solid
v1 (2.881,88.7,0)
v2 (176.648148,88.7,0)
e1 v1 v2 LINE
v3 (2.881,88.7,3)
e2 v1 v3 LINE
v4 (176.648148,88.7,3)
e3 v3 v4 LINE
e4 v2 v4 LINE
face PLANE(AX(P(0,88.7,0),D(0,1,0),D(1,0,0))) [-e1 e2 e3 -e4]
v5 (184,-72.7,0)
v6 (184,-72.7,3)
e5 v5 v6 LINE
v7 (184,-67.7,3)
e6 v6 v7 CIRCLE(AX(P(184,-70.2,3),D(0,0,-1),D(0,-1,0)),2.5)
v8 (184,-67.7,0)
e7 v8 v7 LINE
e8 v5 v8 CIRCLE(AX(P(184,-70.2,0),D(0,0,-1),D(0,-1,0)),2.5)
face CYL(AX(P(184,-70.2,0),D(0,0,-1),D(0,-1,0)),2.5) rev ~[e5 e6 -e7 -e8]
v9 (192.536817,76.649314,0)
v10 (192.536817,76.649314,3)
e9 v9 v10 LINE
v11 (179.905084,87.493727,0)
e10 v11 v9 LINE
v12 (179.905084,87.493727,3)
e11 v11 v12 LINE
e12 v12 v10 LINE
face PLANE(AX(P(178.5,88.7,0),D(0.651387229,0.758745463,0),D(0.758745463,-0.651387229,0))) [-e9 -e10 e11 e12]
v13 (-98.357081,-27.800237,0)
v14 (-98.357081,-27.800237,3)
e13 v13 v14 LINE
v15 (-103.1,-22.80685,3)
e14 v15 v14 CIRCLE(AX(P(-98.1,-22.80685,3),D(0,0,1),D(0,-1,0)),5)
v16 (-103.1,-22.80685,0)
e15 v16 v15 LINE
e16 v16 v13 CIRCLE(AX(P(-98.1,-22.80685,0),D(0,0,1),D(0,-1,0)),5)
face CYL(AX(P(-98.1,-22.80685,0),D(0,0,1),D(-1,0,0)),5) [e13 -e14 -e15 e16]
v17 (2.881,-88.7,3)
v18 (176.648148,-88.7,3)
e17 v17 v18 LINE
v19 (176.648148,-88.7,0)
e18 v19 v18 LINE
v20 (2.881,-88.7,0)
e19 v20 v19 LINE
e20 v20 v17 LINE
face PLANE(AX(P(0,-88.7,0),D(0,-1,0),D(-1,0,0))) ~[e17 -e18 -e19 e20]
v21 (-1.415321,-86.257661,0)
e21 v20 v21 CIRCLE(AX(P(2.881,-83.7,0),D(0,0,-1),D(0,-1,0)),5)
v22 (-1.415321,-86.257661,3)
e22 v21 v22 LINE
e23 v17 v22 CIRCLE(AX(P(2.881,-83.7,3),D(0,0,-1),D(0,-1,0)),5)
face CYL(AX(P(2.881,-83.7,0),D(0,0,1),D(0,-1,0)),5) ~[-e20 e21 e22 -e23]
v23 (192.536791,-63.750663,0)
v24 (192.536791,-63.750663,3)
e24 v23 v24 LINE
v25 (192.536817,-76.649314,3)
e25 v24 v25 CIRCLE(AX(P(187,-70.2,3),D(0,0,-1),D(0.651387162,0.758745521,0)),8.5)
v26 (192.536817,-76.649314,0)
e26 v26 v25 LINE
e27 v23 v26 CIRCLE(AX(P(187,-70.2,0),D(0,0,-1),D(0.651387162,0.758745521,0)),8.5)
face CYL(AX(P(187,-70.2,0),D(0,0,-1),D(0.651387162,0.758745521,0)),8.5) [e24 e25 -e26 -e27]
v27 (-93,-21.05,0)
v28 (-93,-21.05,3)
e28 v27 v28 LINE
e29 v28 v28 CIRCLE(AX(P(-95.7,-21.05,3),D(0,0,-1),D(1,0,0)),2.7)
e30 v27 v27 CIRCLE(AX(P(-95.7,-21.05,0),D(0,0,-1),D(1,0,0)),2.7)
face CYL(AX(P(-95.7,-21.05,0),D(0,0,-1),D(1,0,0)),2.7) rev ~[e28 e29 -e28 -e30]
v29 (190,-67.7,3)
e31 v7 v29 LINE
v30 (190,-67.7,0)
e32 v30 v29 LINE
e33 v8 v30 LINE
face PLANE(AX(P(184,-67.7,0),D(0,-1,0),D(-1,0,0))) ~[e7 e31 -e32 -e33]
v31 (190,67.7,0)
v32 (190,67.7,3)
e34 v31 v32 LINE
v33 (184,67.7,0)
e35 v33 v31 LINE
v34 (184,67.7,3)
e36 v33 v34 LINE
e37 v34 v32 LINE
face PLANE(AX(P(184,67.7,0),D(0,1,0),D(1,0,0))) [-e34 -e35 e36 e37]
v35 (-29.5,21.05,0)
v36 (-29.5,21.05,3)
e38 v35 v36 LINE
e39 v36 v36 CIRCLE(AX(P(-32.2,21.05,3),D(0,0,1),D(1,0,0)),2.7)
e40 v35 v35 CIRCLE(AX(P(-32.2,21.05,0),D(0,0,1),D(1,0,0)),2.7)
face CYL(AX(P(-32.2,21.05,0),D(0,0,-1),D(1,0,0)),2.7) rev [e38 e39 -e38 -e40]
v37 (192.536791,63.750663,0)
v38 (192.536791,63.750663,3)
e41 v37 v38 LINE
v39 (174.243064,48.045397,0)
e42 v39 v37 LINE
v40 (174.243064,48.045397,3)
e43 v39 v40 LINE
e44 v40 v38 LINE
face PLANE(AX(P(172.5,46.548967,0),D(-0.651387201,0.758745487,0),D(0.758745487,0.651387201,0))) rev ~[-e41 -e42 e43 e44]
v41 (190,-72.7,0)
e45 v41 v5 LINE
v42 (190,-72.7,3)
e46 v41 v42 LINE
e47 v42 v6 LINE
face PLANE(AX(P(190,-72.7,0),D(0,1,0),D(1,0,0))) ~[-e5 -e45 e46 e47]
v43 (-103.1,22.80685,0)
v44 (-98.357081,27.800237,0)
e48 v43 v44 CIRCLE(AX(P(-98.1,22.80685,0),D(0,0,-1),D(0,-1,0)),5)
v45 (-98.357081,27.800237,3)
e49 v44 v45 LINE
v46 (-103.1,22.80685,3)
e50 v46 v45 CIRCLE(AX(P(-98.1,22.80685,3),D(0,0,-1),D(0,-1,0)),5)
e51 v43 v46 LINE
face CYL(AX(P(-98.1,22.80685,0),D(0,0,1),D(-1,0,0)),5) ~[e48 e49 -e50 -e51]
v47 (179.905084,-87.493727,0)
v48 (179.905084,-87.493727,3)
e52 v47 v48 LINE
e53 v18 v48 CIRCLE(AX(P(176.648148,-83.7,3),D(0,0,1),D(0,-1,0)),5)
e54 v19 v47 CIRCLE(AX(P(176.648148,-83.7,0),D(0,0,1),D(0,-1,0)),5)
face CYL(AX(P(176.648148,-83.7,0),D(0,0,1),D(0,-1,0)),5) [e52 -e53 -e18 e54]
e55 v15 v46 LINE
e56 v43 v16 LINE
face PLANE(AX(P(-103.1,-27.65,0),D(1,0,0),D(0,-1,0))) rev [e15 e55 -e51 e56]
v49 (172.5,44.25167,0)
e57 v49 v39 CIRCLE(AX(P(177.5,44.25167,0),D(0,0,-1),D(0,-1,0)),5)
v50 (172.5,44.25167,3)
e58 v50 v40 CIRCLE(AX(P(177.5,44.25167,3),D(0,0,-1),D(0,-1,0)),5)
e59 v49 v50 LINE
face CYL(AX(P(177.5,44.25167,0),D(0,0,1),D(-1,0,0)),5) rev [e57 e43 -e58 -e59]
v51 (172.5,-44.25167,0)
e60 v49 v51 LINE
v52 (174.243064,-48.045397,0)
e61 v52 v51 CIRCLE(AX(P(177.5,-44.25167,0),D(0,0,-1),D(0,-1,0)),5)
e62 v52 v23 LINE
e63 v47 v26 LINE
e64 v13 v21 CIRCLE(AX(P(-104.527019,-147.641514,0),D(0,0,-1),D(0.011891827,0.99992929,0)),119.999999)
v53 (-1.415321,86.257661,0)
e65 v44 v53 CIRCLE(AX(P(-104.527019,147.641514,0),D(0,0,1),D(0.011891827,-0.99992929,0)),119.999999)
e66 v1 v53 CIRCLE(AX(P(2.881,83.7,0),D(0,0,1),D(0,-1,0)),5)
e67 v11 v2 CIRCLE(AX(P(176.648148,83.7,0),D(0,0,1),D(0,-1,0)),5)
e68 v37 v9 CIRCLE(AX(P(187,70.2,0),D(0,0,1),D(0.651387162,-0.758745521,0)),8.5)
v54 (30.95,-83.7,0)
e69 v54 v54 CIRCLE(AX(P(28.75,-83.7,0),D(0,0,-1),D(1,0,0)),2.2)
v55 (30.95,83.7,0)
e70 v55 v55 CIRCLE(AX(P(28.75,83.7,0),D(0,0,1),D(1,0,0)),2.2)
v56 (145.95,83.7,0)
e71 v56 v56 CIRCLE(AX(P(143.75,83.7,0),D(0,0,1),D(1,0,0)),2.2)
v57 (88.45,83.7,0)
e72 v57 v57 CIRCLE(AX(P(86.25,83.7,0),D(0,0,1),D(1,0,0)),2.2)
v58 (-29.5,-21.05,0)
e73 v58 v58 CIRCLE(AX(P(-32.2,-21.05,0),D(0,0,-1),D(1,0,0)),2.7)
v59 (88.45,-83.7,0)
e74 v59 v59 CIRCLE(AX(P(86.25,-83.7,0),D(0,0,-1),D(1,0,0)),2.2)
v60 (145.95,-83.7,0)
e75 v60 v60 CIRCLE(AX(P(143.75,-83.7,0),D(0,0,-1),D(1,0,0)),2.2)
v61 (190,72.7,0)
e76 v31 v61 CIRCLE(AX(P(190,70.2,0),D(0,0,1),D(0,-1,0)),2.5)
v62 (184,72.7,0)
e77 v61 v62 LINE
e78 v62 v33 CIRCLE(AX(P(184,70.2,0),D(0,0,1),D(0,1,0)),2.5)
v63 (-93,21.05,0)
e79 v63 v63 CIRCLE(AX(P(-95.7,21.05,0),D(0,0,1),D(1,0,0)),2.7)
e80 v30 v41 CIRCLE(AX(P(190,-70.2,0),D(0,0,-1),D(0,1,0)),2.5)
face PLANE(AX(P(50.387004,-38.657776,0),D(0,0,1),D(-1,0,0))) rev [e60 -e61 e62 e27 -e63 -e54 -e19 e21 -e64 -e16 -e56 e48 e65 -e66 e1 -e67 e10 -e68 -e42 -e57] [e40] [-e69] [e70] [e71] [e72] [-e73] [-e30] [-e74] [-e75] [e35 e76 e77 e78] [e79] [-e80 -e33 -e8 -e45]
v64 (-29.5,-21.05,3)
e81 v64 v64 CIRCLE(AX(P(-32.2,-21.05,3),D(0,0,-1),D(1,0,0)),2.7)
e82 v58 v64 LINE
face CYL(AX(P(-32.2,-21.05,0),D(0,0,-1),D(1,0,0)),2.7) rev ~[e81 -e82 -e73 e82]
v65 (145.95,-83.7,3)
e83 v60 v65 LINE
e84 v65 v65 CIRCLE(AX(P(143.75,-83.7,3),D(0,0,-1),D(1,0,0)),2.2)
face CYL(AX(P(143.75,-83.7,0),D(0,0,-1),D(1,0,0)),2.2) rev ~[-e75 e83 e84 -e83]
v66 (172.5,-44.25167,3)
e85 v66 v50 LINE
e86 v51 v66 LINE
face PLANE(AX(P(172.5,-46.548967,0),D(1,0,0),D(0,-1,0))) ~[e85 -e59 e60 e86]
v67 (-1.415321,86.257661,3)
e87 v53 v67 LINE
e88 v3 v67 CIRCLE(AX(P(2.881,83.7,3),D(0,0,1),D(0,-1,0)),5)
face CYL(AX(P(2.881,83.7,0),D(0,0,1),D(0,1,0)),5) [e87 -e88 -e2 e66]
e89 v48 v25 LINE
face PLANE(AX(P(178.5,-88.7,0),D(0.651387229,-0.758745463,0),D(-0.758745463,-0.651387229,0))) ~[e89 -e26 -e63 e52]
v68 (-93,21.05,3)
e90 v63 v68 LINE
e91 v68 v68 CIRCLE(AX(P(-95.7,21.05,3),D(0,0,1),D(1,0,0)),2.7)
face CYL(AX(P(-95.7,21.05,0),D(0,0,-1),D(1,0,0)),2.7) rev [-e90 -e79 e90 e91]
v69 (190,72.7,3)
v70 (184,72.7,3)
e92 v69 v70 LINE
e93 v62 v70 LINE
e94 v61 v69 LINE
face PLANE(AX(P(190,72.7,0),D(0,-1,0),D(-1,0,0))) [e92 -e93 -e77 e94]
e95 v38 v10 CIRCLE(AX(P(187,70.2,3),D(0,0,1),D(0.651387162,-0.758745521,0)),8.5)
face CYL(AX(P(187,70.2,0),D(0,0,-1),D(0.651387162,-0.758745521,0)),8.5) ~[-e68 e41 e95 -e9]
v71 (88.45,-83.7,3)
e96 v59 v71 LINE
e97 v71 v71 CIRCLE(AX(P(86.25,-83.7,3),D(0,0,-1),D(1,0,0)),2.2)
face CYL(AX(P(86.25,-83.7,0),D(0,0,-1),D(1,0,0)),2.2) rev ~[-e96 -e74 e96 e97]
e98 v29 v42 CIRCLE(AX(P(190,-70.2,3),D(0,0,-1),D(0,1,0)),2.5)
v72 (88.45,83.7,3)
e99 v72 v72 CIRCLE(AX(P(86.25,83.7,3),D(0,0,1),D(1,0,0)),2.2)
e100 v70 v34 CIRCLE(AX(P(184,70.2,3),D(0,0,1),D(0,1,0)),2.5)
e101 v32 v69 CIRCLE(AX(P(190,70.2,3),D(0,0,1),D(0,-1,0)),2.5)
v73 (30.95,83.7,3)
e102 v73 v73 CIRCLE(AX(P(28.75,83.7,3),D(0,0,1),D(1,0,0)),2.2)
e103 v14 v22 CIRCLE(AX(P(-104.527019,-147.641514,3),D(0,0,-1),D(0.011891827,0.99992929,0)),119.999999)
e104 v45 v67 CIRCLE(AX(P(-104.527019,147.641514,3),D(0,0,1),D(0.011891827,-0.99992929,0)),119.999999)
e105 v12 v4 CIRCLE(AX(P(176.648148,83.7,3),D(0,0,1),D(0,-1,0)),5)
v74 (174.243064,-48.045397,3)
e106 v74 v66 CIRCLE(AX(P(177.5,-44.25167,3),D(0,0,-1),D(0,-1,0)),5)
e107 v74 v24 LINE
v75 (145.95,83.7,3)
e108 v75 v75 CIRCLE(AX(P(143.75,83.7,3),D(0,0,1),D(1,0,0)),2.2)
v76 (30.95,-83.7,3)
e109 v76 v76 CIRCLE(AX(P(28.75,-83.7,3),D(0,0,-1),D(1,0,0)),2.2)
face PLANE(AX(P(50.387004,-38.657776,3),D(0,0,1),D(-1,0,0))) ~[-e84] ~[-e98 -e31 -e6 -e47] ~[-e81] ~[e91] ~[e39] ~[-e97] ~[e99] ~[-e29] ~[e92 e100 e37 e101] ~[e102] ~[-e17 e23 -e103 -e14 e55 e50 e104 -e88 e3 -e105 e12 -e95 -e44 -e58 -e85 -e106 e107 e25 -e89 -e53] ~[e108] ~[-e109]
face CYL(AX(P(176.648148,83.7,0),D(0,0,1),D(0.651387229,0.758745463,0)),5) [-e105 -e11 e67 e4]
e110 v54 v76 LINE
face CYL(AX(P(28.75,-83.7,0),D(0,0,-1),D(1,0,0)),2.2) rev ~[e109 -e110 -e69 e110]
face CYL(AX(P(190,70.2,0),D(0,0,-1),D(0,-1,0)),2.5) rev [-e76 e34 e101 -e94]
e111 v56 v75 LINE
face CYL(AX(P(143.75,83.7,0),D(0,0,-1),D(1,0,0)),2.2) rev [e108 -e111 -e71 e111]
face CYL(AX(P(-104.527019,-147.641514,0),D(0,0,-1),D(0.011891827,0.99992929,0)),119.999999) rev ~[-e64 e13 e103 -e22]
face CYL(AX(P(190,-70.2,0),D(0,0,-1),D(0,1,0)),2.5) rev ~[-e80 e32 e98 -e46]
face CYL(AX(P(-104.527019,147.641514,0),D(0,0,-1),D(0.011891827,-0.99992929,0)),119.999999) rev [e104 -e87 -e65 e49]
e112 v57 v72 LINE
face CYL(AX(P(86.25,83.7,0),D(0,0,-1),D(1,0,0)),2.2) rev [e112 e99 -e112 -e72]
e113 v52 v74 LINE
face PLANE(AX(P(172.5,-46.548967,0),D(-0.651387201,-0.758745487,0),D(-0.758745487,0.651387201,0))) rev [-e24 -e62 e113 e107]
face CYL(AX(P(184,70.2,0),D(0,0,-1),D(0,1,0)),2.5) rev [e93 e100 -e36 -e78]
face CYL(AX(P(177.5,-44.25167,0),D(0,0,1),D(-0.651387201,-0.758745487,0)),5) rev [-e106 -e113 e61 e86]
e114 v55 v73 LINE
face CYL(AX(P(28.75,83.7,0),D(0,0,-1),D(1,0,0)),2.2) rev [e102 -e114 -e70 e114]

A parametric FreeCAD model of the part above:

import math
import FreeCAD as App
import Part
import Sketcher
from FreeCAD import Vector


def edges_at(feature, points):
    """Names of the edges that pass closest to the given points."""
    edges = feature.Shape.Edges
    near = lambda p: min(range(len(edges)), key=lambda i: edges[i].distToShape(Part.Vertex(*p))[0])
    return sorted({f"Edge{near(p) + 1}" for p in points})

doc = App.newDocument("Part")
body = doc.addObject("PartDesign::Body", "Body")

# Sketch on XY plane
sketch1 = doc.addObject("Sketcher::SketchObject", "Sketch")
body.addObject(sketch1)
sketch1.AttachmentSupport = (doc.XY_Plane, [""])
sketch1.MapMode = "FlatFace"
sketch1.addGeometry([
    Part.LineSegment(Vector(-103.1, 27.65, 0), Vector(-103.1, 0, 0)),  # 0
    Part.LineSegment(Vector(-103.1, 0, 0), Vector(172.5, 0, 0)),  # 1
    Part.LineSegment(Vector(172.5, 0, 0), Vector(172.5, 46.548967, 0)),  # 2
    Part.LineSegment(Vector(172.5, 46.548967, 0), Vector(192.536791, 63.750663, 0)),  # 3
    Part.ArcOfCircle(Part.Circle(Vector(187, 70.2, 0), Vector(0, 0, 1), 8.5), math.radians(-49.35373), math.radians(49.353499)),  # 4
    Part.LineSegment(Vector(192.536817, 76.649314, 0), Vector(178.5, 88.7, 0)),  # 5
    Part.LineSegment(Vector(178.5, 88.7, 0), Vector(0, 88.7, 0)),  # 6
    Part.ArcOfCircle(Part.Circle(Vector(-104.527019, 147.641514, 0), Vector(0, 0, 1), 119.999999), math.radians(-89.318632), math.radians(-29.418122)),  # 7
    Part.Circle(Vector(-95.7, 21.05, 0), Vector(0, 0, 1), 2.7),  # 8
    Part.Circle(Vector(-32.2, 21.05, 0), Vector(0, 0, 1), 2.7),  # 9
    Part.Circle(Vector(28.75, 83.7, 0), Vector(0, 0, 1), 2.2),  # 10
    Part.Circle(Vector(86.25, 83.7, 0), Vector(0, 0, 1), 2.2),  # 11
    Part.ArcOfCircle(Part.Circle(Vector(184, 70.2, 0), Vector(0, 0, 1), 2.5), math.radians(90), math.radians(270)),  # 12
    Part.LineSegment(Vector(184, 72.7, 0), Vector(190, 72.7, 0)),  # 13
    Part.ArcOfCircle(Part.Circle(Vector(190, 70.2, 0), Vector(0, 0, 1), 2.5), math.radians(-90), math.radians(90)),  # 14
    Part.LineSegment(Vector(190, 67.7, 0), Vector(184, 67.7, 0)),  # 15
    Part.Circle(Vector(143.75, 83.7, 0), Vector(0, 0, 1), 2.2),  # 16
], False)
sketch1.addConstraint([
    Sketcher.Constraint("Coincident", 0, 2, 1, 1),
    Sketcher.Constraint("Coincident", 1, 2, 2, 1),
    Sketcher.Constraint("Coincident", 2, 2, 3, 1),
    Sketcher.Constraint("Tangent", 3, 2, 4, 1),
    Sketcher.Constraint("Coincident", 4, 2, 5, 1),
    Sketcher.Constraint("Coincident", 5, 2, 6, 1),
    Sketcher.Constraint("Coincident", 6, 2, 7, 2),
    Sketcher.Constraint("Coincident", 7, 1, 0, 1),
    Sketcher.Constraint("Tangent", 12, 1, 13, 1),
    Sketcher.Constraint("Tangent", 13, 2, 14, 2),
    Sketcher.Constraint("Tangent", 14, 1, 15, 1),
    Sketcher.Constraint("Tangent", 15, 2, 12, 2),
    Sketcher.Constraint("Vertical", 0),
    Sketcher.Constraint("Horizontal", 1),
    Sketcher.Constraint("Vertical", 2),
    Sketcher.Constraint("Horizontal", 6),
    Sketcher.Constraint("Horizontal", 13),
    Sketcher.Constraint("Horizontal", 15),
    Sketcher.Constraint("Equal", 8, 9),
    Sketcher.Constraint("Equal", 10, 11),
    Sketcher.Constraint("Equal", 11, 16),
    Sketcher.Constraint("PointOnObject", 0, 2, -1),
    Sketcher.Constraint("PointOnObject", 6, 2, -2),
    Sketcher.Constraint("Horizontal", 8, 3, 9, 3),
    Sketcher.Constraint("Horizontal", 10, 3, 11, 3),
    Sketcher.Constraint("Horizontal", 4, 3, 12, 3),
    Sketcher.Constraint("Horizontal", 11, 3, 16, 3),
    Sketcher.Constraint("Radius", 7, 119.999999),
    Sketcher.Constraint("Diameter", 8, 5.4),
    Sketcher.Constraint("Diameter", 10, 4.4),
    Sketcher.Constraint("Radius", 4, 8.5),
    Sketcher.Constraint("Radius", 12, 2.5),
    Sketcher.Constraint("DistanceX", 13, 1, 13, 2, 6.0),
    Sketcher.Constraint("DistanceX", 1, 1, 1, 2, 275.6),
    Sketcher.Constraint("DistanceX", 6, 2, 6, 1, 178.5),
    Sketcher.Constraint("DistanceX", -1, 1, 4, 3, 187.0),
    Sketcher.Constraint("DistanceX", -1, 1, 12, 3, 184.0),
    Sketcher.Constraint("DistanceX", 10, 3, 16, 3, 115.0),
    Sketcher.Constraint("DistanceY", 10, 3, 6, 2, 5.0),
    Sketcher.Constraint("DistanceY", 0, 2, 0, 1, 27.65),
    Sketcher.Constraint("DistanceY", -1, 1, 4, 3, 70.2),
    Sketcher.Constraint("DistanceX", 8, 3, -1, 1, 95.7),
    Sketcher.Constraint("DistanceX", 9, 3, -1, 1, 32.2),
    Sketcher.Constraint("DistanceY", -1, 1, 10, 3, 83.7),
    Sketcher.Constraint("DistanceX", 0, 2, -1, 1, 103.1),
    Sketcher.Constraint("DistanceX", 10, 3, 11, 3, 57.5),
    Sketcher.Constraint("DistanceY", 8, 3, 7, 1, 6.6),
    Sketcher.Constraint("DistanceX", -1, 1, 10, 3, 28.75),
    Sketcher.Constraint("Distance", 3, 26.407789),
    Sketcher.Constraint("DistanceY", 3, 2, 4, 2, 12.898651),
])
pad1 = doc.addObject("PartDesign::Pad", "Pad")
body.addObject(pad1)
pad1.Profile = sketch1
pad1.Length = 3
doc.recompute()

mirrored = doc.addObject("PartDesign::Mirrored", "Mirrored")
body.addObject(mirrored)
mirrored.Originals = [pad1]
mirrored.MirrorPlane = (doc.XZ_Plane, [""])
body.Tip = mirrored
doc.recompute()

fillet = doc.addObject("PartDesign::Fillet", "Fillet")
body.addObject(fillet)
fillet.Base = (mirrored, edges_at(mirrored, [
    (178.5, -88.7, 1.5),
    (0, -88.7, 1.5),
    (-103.1, -27.65, 1.5),
    (192.537, 76.649, 1.5),
    (178.5, 88.7, 1.5),
    (0, 88.7, 1.5),
    (-103.1, 27.65, 1.5),
    (172.5, 46.549, 1.5),
    (172.5, -46.549, 1.5),
]))
fillet.Radius = 5

doc.recompute()
